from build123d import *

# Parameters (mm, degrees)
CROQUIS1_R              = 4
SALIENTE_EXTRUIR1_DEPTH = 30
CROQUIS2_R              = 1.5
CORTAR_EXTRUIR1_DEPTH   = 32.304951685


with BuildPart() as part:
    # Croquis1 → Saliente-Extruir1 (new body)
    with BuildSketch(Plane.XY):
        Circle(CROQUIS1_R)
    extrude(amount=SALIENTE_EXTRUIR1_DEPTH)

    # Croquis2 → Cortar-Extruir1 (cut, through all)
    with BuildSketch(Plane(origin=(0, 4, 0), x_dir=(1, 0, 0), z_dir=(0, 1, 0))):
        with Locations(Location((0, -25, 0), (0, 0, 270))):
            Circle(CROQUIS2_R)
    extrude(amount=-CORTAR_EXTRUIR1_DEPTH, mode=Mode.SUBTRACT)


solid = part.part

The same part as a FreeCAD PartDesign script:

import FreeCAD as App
import Part
import Sketcher
from FreeCAD import Vector
Q = App.Units.Quantity

doc = App.newDocument("Part")
body = doc.addObject("PartDesign::Body", "Body")

# Sketch on XY plane
sketch1 = body.newObject("Sketcher::SketchObject", "Sketch")
sketch1.AttachmentSupport = (doc.getObject("XY_Plane"), [""])
sketch1.MapMode = "FlatFace"
sketch1.addGeometry(Part.Circle(Vector(0, 0, 0), Vector(0, 0, 1), 4), False)
sketch1.addConstraint([
    Sketcher.Constraint("Coincident", 0, 3, -1, 1),
    Sketcher.Constraint("Diameter", 0, Q("8 mm")),
])
pad1 = body.newObject("PartDesign::Pad", "Pad")
pad1.Profile = sketch1
pad1.Length = 30

# Sketch on XZ plane
sketch2 = body.newObject("Sketcher::SketchObject", "Sketch001")
sketch2.AttachmentSupport = (doc.getObject("XZ_Plane"), [""])
sketch2.MapMode = "FlatFace"
sketch2.AttachmentOffset = App.Placement(Vector(0, 0, -4), App.Rotation())
sketch2.addGeometry(Part.Circle(Vector(0, 25, 0), Vector(0, 0, 1), 1.5), False)
sketch2.addConstraint([
    Sketcher.Constraint("PointOnObject", 0, 3, -2),
    Sketcher.Constraint("Diameter", 0, Q("3 mm")),
    Sketcher.Constraint("DistanceY", -1, 1, 0, 3, Q("25 mm")),
])
pocket1 = body.newObject("PartDesign::Pocket", "Pocket")
pocket1.Profile = sketch2
pocket1.Type = "ThroughAll"
pocket1.Reversed = True

doc.recompute()
